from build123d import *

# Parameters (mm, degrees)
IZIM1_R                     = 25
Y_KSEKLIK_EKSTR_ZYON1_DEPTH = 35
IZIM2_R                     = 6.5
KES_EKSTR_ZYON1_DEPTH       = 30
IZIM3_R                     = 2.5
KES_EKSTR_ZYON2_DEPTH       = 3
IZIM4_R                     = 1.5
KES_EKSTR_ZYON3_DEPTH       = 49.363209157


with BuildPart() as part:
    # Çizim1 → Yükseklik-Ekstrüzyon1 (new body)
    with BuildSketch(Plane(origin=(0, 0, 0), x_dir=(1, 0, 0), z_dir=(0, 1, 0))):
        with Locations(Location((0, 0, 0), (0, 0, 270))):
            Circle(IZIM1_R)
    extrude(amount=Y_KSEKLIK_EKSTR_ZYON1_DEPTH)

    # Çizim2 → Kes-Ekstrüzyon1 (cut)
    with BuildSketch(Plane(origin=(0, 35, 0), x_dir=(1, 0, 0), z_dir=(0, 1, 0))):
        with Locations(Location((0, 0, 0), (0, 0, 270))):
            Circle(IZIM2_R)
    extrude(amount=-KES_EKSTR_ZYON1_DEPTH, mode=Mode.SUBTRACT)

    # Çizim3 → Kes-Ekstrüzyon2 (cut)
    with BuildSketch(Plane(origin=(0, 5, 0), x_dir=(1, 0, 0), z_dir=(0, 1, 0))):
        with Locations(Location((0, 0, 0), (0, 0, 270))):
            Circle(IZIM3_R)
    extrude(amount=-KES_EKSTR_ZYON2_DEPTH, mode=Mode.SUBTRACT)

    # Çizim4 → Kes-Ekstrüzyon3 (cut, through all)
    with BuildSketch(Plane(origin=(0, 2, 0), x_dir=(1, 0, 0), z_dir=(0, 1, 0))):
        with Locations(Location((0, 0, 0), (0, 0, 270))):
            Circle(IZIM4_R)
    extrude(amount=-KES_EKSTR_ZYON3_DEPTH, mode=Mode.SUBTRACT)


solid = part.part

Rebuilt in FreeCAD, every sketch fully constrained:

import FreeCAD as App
import Part
import Sketcher
from FreeCAD import Vector
Q = App.Units.Quantity

doc = App.newDocument("Part")
body = doc.addObject("PartDesign::Body", "Body")

sketch1 = doc.addObject("Sketcher::SketchObject", "Sketch")
body.addObject(sketch1)
sketch1.AttachmentSupport = (doc.XZ_Plane, [""])
sketch1.MapMode = "FlatFace"
sketch1.addGeometry(Part.Circle(Vector(0, 0, 0), Vector(0, 0, 1), 25), False)
sketch1.addConstraint([
    Sketcher.Constraint("Coincident", 0, 3, -1, 1),
    Sketcher.Constraint("Diameter", 0, Q("50 mm")),
])
pad1 = doc.addObject("PartDesign::Pad", "Pad")
body.addObject(pad1)
pad1.Profile = sketch1
pad1.Length = 35
pad1.Reversed = True

sketch2 = doc.addObject("Sketcher::SketchObject", "Sketch001")
body.addObject(sketch2)
sketch2.AttachmentSupport = (doc.XZ_Plane, [""])
sketch2.MapMode = "FlatFace"
sketch2.AttachmentOffset = App.Placement(Vector(0, 0, -35), App.Rotation())
sketch2.addGeometry(Part.Circle(Vector(0, 0, 0), Vector(0, 0, 1), 6.5), False)
sketch2.addConstraint([
    Sketcher.Constraint("Coincident", 0, 3, -1, 1),
    Sketcher.Constraint("Diameter", 0, Q("13 mm")),
])
pocket1 = doc.addObject("PartDesign::Pocket", "Pocket")
body.addObject(pocket1)
pocket1.Profile = sketch2
pocket1.Length = 30
pocket1.Reversed = True

sketch3 = doc.addObject("Sketcher::SketchObject", "Sketch002")
body.addObject(sketch3)
sketch3.AttachmentSupport = (doc.XZ_Plane, [""])
sketch3.MapMode = "FlatFace"
sketch3.AttachmentOffset = App.Placement(Vector(0, 0, -5), App.Rotation())
sketch3.addGeometry(Part.Circle(Vector(0, 0, 0), Vector(0, 0, 1), 2.5), False)
sketch3.addConstraint([
    Sketcher.Constraint("Coincident", 0, 3, -1, 1),
    Sketcher.Constraint("Diameter", 0, Q("5 mm")),
])
pocket2 = doc.addObject("PartDesign::Pocket", "Pocket001")
body.addObject(pocket2)
pocket2.Profile = sketch3
pocket2.Length = 3
pocket2.Reversed = True

sketch4 = doc.addObject("Sketcher::SketchObject", "Sketch003")
body.addObject(sketch4)
sketch4.AttachmentSupport = (doc.XZ_Plane, [""])
sketch4.MapMode = "FlatFace"
sketch4.AttachmentOffset = App.Placement(Vector(0, 0, -2), App.Rotation())
sketch4.addGeometry(Part.Circle(Vector(0, 0, 0), Vector(0, 0, 1), 1.5), False)
sketch4.addConstraint([
    Sketcher.Constraint("Coincident", 0, 3, -1, 1),
    Sketcher.Constraint("Diameter", 0, Q("3 mm")),
])
pocket3 = doc.addObject("PartDesign::Pocket", "Pocket002")
body.addObject(pocket3)
pocket3.Profile = sketch4
pocket3.Type = "ThroughAll"
pocket3.Reversed = True

doc.recompute()
